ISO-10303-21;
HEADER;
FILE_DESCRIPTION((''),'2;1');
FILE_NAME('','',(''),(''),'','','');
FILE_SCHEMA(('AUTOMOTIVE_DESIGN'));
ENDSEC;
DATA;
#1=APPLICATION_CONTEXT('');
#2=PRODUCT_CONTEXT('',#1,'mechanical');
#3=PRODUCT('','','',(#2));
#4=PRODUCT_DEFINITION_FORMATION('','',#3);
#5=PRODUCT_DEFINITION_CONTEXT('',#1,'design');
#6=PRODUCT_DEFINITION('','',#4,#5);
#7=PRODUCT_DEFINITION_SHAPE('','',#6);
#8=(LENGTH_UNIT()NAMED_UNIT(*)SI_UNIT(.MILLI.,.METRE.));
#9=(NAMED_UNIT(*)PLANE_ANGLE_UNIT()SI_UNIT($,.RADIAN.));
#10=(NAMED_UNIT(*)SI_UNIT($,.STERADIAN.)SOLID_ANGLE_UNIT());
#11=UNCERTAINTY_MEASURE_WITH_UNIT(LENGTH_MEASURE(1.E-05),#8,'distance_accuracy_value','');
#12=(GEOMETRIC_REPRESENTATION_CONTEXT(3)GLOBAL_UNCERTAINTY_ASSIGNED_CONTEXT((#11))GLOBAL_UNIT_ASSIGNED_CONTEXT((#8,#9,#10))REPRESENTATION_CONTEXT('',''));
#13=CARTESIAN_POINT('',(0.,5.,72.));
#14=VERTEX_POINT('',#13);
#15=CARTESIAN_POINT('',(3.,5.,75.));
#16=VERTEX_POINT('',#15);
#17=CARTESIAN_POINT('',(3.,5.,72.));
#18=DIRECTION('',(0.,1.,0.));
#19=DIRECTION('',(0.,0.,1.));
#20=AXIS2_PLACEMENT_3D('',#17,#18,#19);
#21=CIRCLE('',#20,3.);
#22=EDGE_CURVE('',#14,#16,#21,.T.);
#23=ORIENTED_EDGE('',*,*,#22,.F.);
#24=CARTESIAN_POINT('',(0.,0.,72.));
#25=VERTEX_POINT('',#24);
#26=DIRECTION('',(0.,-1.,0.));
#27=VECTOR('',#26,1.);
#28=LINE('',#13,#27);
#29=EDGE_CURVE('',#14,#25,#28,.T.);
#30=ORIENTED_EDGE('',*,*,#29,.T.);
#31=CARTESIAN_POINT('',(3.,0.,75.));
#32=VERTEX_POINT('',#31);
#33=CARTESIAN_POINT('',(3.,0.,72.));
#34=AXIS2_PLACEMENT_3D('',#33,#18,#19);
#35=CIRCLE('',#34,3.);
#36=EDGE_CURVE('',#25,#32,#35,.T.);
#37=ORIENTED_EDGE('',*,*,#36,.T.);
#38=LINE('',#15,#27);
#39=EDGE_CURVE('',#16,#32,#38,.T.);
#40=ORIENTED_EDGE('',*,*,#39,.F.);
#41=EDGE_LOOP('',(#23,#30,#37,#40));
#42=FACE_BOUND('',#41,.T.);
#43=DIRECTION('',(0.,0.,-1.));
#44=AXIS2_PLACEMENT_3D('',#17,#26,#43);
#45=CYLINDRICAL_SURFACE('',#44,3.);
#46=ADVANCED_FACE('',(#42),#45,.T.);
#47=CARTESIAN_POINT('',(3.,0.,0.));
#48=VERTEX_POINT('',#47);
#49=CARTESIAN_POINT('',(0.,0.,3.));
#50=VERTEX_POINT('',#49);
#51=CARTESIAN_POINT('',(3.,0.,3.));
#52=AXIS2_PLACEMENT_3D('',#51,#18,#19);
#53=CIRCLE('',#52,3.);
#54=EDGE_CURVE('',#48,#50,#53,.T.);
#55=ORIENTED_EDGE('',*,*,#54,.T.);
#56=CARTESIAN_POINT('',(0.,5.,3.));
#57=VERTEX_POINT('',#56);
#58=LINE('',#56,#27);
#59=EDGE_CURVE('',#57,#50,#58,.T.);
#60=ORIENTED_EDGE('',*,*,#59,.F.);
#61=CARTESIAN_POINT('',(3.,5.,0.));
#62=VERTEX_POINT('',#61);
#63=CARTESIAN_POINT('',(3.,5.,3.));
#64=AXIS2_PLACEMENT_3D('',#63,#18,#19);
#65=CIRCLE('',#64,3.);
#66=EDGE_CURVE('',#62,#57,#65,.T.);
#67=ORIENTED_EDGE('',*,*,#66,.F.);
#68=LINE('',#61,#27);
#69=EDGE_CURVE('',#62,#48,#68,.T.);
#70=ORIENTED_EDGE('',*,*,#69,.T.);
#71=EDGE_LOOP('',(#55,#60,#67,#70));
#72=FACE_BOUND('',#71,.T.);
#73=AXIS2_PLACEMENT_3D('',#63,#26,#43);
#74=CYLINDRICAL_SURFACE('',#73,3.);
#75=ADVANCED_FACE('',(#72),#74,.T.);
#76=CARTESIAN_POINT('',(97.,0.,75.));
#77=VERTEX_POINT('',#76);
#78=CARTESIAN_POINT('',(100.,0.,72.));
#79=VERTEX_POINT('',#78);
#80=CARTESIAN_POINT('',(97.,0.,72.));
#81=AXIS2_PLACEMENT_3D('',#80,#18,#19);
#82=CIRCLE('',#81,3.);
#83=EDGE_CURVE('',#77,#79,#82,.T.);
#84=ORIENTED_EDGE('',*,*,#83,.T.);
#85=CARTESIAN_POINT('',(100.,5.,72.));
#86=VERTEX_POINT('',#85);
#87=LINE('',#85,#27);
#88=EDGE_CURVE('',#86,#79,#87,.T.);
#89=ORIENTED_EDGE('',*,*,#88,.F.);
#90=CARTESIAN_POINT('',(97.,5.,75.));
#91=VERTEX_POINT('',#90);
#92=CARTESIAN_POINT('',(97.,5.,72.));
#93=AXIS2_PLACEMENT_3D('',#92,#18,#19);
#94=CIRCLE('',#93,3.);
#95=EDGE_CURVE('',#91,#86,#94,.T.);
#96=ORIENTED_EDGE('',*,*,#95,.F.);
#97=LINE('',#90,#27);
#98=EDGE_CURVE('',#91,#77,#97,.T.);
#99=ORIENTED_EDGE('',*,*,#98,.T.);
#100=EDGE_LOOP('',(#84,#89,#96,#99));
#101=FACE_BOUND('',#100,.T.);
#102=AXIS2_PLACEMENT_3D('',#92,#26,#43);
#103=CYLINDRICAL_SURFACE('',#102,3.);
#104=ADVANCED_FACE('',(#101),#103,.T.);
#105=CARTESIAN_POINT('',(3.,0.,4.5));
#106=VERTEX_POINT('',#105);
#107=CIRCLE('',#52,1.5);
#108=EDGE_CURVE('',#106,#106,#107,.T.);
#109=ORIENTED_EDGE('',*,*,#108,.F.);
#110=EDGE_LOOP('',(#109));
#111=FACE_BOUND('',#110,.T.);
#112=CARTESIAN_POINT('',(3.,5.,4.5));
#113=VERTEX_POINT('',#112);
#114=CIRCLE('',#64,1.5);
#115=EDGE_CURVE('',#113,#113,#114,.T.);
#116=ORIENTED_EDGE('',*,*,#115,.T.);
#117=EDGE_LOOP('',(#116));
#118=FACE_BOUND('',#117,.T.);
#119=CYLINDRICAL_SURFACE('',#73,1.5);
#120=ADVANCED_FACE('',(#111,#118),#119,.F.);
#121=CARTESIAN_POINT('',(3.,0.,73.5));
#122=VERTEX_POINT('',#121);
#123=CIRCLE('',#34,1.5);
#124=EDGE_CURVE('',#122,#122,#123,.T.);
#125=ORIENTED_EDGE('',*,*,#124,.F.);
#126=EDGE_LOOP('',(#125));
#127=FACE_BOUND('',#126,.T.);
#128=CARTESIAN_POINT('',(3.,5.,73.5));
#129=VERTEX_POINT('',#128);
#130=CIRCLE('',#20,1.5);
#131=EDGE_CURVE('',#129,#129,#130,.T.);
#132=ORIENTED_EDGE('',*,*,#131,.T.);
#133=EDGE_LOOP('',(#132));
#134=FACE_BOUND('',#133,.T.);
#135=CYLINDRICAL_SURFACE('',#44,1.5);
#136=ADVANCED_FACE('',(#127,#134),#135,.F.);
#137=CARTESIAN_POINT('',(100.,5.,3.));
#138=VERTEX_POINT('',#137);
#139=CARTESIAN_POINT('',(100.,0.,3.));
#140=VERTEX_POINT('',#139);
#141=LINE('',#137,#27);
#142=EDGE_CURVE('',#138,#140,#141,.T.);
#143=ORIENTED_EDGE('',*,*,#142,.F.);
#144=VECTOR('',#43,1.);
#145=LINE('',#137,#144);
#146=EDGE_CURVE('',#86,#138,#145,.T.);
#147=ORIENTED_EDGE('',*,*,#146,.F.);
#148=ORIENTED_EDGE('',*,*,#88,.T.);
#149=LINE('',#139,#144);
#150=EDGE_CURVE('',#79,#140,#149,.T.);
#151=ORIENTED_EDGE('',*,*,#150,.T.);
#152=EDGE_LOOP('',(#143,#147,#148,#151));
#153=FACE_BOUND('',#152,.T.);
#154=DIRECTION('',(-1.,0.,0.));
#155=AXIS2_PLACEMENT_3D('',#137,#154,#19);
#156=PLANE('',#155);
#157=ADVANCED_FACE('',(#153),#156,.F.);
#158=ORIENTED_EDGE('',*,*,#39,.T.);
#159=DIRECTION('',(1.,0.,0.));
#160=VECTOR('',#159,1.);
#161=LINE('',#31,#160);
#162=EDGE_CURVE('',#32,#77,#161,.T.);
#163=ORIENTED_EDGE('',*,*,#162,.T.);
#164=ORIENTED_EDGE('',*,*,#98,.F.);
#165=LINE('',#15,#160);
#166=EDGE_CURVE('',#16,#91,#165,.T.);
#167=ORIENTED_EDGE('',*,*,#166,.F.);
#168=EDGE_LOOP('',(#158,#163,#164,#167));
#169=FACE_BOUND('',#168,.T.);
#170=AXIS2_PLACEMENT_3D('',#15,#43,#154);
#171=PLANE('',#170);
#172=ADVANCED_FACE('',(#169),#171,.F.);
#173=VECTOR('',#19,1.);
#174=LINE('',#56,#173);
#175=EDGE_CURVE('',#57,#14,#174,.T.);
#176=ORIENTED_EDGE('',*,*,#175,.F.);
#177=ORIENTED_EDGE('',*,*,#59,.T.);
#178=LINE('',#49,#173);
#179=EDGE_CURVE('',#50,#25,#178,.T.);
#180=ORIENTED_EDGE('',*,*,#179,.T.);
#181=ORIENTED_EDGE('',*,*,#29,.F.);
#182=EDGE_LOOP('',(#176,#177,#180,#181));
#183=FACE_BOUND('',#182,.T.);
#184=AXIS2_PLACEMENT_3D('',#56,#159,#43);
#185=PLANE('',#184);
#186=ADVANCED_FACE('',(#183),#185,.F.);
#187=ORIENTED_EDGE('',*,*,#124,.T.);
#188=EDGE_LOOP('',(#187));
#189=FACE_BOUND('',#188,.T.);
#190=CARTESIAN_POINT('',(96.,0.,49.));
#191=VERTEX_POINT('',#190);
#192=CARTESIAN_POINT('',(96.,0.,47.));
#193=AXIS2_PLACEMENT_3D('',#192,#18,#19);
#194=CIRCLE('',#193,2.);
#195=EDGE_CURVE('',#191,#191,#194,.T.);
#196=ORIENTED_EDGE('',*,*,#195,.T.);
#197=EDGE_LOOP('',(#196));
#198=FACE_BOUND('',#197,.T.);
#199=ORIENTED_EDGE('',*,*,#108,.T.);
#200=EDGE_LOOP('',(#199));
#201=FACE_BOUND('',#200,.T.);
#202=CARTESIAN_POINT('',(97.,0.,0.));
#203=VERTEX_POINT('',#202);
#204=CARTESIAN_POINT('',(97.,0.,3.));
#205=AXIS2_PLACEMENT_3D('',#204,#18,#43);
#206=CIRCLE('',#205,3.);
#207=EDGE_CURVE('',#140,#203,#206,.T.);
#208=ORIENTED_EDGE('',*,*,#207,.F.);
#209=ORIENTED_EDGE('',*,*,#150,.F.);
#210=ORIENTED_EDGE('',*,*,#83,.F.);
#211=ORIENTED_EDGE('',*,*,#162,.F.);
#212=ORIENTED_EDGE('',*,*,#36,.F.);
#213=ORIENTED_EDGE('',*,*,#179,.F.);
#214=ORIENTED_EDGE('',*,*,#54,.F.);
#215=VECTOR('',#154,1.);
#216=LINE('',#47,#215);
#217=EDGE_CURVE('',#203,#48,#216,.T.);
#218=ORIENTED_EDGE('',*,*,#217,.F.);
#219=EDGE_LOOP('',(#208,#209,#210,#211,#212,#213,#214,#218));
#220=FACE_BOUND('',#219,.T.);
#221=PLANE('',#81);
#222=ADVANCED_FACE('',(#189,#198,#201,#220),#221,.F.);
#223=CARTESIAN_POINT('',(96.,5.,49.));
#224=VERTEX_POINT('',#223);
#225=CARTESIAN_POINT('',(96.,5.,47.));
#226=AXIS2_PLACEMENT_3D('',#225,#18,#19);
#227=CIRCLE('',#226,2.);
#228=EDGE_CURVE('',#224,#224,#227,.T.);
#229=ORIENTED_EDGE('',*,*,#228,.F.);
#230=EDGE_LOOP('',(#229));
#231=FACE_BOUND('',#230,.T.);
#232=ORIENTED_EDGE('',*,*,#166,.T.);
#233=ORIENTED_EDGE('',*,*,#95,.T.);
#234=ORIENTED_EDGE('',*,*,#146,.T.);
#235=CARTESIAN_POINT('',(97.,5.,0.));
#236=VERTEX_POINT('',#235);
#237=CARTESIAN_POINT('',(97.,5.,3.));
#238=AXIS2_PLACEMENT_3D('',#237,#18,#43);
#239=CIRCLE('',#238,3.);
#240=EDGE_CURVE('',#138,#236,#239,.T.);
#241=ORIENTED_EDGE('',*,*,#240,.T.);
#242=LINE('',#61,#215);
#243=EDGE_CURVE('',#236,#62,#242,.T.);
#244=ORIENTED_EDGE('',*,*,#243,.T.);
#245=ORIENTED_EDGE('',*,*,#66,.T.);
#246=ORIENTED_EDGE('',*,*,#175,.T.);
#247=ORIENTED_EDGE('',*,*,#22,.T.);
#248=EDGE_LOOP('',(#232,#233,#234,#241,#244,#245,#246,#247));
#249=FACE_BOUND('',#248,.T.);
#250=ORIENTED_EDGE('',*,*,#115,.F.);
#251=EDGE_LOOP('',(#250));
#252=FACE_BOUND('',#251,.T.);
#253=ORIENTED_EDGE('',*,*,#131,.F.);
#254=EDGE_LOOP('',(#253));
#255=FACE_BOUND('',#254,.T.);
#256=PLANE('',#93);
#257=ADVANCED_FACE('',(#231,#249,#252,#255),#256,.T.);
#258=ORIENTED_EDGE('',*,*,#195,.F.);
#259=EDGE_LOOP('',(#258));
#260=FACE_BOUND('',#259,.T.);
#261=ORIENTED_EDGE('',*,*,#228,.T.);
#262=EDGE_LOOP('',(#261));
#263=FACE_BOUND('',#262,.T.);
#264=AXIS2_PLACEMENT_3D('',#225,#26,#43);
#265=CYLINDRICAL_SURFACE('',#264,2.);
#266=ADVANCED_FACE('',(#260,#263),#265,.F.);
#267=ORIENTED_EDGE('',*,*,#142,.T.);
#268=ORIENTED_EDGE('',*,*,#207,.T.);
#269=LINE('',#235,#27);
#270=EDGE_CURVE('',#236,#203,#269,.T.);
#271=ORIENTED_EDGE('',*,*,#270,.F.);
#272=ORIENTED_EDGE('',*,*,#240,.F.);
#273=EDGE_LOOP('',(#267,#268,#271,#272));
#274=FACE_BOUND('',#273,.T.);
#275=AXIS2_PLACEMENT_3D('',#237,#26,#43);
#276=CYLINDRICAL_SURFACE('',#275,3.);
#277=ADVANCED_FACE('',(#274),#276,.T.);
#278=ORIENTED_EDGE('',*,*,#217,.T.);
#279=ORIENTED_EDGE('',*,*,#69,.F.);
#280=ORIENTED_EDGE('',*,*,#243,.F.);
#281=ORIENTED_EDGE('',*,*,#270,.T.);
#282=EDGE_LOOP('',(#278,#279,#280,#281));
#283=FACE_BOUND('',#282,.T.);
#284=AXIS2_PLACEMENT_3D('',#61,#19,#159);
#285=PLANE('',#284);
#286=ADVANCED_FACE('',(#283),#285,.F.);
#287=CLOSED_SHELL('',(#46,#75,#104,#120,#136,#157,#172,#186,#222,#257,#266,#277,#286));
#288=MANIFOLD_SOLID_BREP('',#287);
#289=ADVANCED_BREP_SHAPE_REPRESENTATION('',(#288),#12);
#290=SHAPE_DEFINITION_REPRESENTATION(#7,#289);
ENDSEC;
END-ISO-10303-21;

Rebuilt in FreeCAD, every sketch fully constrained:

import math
import FreeCAD as App
import Part
import Sketcher
from FreeCAD import Vector

doc = App.newDocument("Part")
params = doc.addObject("Spreadsheet::Sheet", "Params")
for row, (alias, value) in enumerate([
    ("sketch1_diameter", "4 mm"),
    ("sketch1_diameter2", "3 mm"),
    ("sketch1_radius", "3 mm"),
    ("sketch1_width", "94 mm"),
    ("sketch1_height", "69 mm"),
    ("pad1_length", "5 mm"),
], start=1):
    params.set(f"A{row}", alias)
    params.set(f"B{row}", "=" + value)
    params.setAlias(f"B{row}", alias)

body = doc.addObject("PartDesign::Body", "Body")

# Sketch on XZ plane
sketch1 = body.newObject("Sketcher::SketchObject", "Sketch")
sketch1.AttachmentSupport = (doc.getObject("XZ_Plane"), [""])
sketch1.MapMode = "FlatFace"
sketch1.addGeometry([
    Part.LineSegment(Vector(97, 0, 0), Vector(3, 0, 0)),  # 0
    Part.ArcOfCircle(Part.Circle(Vector(3, 3, 0), Vector(0, 0, 1), 3), math.radians(180), math.radians(270)),  # 1
    Part.LineSegment(Vector(0, 3, 0), Vector(0, 72, 0)),  # 2
    Part.ArcOfCircle(Part.Circle(Vector(3, 72, 0), Vector(0, 0, 1), 3), math.radians(90), math.radians(180)),  # 3
    Part.LineSegment(Vector(3, 75, 0), Vector(97, 75, 0)),  # 4
    Part.ArcOfCircle(Part.Circle(Vector(97, 72, 0), Vector(0, 0, 1), 3), math.radians(0), math.radians(90)),  # 5
    Part.LineSegment(Vector(100, 72, 0), Vector(100, 3, 0)),  # 6
    Part.ArcOfCircle(Part.Circle(Vector(97, 3, 0), Vector(0, 0, 1), 3), math.radians(-90), math.radians(0)),  # 7
    Part.Circle(Vector(96, 47, 0), Vector(0, 0, 1), 2),  # 8
    Part.Circle(Vector(3, 72, 0), Vector(0, 0, 1), 1.5),  # 9
    Part.Circle(Vector(3, 3, 0), Vector(0, 0, 1), 1.5),  # 10
], False)
sketch1.addConstraint([
    Sketcher.Constraint("Tangent", 0, 2, 1, 2),
    Sketcher.Constraint("Tangent", 1, 1, 2, 1),
    Sketcher.Constraint("Tangent", 2, 2, 3, 2),
    Sketcher.Constraint("Tangent", 3, 1, 4, 1),
    Sketcher.Constraint("Tangent", 4, 2, 5, 2),
    Sketcher.Constraint("Tangent", 5, 1, 6, 1),
    Sketcher.Constraint("Tangent", 6, 2, 7, 2),
    Sketcher.Constraint("Tangent", 7, 1, 0, 1),
    Sketcher.Constraint("Horizontal", 0),
    Sketcher.Constraint("Vertical", 2),
    Sketcher.Constraint("Horizontal", 4),
    Sketcher.Constraint("Vertical", 6),
    Sketcher.Constraint("Coincident", 9, 3, 3, 3),
    Sketcher.Constraint("Coincident", 10, 3, 1, 3),
    Sketcher.Constraint("Equal", 1, 3),
    Sketcher.Constraint("Equal", 3, 5),
    Sketcher.Constraint("Equal", 5, 7),
    Sketcher.Constraint("Equal", 9, 10),
    Sketcher.Constraint("PointOnObject", 0, 2, -1),
    Sketcher.Constraint("PointOnObject", 1, 1, -2),
    Sketcher.Constraint("Diameter", 8, 4.0),
    Sketcher.Constraint("Diameter", 9, 3.0),
    Sketcher.Constraint("Radius", 1, 3.0),
    Sketcher.Constraint("DistanceX", 0, 2, 0, 1, 94.0),
    Sketcher.Constraint("DistanceY", 2, 1, 2, 2, 69.0),
    Sketcher.Constraint("DistanceX", -1, 1, 8, 3, 96.0),
    Sketcher.Constraint("DistanceY", -1, 1, 8, 3, 47.0),
])
sketch1.setExpression("Constraints[20]", "Params.sketch1_diameter")
sketch1.setExpression("Constraints[21]", "Params.sketch1_diameter2")
sketch1.setExpression("Constraints[22]", "Params.sketch1_radius")
sketch1.setExpression("Constraints[23]", "Params.sketch1_width")
sketch1.setExpression("Constraints[24]", "Params.sketch1_height")
pad1 = body.newObject("PartDesign::Pad", "Pad")
pad1.Profile = sketch1
pad1.setExpression("Length", "Params.pad1_length")
pad1.Reversed = True

doc.recompute()
